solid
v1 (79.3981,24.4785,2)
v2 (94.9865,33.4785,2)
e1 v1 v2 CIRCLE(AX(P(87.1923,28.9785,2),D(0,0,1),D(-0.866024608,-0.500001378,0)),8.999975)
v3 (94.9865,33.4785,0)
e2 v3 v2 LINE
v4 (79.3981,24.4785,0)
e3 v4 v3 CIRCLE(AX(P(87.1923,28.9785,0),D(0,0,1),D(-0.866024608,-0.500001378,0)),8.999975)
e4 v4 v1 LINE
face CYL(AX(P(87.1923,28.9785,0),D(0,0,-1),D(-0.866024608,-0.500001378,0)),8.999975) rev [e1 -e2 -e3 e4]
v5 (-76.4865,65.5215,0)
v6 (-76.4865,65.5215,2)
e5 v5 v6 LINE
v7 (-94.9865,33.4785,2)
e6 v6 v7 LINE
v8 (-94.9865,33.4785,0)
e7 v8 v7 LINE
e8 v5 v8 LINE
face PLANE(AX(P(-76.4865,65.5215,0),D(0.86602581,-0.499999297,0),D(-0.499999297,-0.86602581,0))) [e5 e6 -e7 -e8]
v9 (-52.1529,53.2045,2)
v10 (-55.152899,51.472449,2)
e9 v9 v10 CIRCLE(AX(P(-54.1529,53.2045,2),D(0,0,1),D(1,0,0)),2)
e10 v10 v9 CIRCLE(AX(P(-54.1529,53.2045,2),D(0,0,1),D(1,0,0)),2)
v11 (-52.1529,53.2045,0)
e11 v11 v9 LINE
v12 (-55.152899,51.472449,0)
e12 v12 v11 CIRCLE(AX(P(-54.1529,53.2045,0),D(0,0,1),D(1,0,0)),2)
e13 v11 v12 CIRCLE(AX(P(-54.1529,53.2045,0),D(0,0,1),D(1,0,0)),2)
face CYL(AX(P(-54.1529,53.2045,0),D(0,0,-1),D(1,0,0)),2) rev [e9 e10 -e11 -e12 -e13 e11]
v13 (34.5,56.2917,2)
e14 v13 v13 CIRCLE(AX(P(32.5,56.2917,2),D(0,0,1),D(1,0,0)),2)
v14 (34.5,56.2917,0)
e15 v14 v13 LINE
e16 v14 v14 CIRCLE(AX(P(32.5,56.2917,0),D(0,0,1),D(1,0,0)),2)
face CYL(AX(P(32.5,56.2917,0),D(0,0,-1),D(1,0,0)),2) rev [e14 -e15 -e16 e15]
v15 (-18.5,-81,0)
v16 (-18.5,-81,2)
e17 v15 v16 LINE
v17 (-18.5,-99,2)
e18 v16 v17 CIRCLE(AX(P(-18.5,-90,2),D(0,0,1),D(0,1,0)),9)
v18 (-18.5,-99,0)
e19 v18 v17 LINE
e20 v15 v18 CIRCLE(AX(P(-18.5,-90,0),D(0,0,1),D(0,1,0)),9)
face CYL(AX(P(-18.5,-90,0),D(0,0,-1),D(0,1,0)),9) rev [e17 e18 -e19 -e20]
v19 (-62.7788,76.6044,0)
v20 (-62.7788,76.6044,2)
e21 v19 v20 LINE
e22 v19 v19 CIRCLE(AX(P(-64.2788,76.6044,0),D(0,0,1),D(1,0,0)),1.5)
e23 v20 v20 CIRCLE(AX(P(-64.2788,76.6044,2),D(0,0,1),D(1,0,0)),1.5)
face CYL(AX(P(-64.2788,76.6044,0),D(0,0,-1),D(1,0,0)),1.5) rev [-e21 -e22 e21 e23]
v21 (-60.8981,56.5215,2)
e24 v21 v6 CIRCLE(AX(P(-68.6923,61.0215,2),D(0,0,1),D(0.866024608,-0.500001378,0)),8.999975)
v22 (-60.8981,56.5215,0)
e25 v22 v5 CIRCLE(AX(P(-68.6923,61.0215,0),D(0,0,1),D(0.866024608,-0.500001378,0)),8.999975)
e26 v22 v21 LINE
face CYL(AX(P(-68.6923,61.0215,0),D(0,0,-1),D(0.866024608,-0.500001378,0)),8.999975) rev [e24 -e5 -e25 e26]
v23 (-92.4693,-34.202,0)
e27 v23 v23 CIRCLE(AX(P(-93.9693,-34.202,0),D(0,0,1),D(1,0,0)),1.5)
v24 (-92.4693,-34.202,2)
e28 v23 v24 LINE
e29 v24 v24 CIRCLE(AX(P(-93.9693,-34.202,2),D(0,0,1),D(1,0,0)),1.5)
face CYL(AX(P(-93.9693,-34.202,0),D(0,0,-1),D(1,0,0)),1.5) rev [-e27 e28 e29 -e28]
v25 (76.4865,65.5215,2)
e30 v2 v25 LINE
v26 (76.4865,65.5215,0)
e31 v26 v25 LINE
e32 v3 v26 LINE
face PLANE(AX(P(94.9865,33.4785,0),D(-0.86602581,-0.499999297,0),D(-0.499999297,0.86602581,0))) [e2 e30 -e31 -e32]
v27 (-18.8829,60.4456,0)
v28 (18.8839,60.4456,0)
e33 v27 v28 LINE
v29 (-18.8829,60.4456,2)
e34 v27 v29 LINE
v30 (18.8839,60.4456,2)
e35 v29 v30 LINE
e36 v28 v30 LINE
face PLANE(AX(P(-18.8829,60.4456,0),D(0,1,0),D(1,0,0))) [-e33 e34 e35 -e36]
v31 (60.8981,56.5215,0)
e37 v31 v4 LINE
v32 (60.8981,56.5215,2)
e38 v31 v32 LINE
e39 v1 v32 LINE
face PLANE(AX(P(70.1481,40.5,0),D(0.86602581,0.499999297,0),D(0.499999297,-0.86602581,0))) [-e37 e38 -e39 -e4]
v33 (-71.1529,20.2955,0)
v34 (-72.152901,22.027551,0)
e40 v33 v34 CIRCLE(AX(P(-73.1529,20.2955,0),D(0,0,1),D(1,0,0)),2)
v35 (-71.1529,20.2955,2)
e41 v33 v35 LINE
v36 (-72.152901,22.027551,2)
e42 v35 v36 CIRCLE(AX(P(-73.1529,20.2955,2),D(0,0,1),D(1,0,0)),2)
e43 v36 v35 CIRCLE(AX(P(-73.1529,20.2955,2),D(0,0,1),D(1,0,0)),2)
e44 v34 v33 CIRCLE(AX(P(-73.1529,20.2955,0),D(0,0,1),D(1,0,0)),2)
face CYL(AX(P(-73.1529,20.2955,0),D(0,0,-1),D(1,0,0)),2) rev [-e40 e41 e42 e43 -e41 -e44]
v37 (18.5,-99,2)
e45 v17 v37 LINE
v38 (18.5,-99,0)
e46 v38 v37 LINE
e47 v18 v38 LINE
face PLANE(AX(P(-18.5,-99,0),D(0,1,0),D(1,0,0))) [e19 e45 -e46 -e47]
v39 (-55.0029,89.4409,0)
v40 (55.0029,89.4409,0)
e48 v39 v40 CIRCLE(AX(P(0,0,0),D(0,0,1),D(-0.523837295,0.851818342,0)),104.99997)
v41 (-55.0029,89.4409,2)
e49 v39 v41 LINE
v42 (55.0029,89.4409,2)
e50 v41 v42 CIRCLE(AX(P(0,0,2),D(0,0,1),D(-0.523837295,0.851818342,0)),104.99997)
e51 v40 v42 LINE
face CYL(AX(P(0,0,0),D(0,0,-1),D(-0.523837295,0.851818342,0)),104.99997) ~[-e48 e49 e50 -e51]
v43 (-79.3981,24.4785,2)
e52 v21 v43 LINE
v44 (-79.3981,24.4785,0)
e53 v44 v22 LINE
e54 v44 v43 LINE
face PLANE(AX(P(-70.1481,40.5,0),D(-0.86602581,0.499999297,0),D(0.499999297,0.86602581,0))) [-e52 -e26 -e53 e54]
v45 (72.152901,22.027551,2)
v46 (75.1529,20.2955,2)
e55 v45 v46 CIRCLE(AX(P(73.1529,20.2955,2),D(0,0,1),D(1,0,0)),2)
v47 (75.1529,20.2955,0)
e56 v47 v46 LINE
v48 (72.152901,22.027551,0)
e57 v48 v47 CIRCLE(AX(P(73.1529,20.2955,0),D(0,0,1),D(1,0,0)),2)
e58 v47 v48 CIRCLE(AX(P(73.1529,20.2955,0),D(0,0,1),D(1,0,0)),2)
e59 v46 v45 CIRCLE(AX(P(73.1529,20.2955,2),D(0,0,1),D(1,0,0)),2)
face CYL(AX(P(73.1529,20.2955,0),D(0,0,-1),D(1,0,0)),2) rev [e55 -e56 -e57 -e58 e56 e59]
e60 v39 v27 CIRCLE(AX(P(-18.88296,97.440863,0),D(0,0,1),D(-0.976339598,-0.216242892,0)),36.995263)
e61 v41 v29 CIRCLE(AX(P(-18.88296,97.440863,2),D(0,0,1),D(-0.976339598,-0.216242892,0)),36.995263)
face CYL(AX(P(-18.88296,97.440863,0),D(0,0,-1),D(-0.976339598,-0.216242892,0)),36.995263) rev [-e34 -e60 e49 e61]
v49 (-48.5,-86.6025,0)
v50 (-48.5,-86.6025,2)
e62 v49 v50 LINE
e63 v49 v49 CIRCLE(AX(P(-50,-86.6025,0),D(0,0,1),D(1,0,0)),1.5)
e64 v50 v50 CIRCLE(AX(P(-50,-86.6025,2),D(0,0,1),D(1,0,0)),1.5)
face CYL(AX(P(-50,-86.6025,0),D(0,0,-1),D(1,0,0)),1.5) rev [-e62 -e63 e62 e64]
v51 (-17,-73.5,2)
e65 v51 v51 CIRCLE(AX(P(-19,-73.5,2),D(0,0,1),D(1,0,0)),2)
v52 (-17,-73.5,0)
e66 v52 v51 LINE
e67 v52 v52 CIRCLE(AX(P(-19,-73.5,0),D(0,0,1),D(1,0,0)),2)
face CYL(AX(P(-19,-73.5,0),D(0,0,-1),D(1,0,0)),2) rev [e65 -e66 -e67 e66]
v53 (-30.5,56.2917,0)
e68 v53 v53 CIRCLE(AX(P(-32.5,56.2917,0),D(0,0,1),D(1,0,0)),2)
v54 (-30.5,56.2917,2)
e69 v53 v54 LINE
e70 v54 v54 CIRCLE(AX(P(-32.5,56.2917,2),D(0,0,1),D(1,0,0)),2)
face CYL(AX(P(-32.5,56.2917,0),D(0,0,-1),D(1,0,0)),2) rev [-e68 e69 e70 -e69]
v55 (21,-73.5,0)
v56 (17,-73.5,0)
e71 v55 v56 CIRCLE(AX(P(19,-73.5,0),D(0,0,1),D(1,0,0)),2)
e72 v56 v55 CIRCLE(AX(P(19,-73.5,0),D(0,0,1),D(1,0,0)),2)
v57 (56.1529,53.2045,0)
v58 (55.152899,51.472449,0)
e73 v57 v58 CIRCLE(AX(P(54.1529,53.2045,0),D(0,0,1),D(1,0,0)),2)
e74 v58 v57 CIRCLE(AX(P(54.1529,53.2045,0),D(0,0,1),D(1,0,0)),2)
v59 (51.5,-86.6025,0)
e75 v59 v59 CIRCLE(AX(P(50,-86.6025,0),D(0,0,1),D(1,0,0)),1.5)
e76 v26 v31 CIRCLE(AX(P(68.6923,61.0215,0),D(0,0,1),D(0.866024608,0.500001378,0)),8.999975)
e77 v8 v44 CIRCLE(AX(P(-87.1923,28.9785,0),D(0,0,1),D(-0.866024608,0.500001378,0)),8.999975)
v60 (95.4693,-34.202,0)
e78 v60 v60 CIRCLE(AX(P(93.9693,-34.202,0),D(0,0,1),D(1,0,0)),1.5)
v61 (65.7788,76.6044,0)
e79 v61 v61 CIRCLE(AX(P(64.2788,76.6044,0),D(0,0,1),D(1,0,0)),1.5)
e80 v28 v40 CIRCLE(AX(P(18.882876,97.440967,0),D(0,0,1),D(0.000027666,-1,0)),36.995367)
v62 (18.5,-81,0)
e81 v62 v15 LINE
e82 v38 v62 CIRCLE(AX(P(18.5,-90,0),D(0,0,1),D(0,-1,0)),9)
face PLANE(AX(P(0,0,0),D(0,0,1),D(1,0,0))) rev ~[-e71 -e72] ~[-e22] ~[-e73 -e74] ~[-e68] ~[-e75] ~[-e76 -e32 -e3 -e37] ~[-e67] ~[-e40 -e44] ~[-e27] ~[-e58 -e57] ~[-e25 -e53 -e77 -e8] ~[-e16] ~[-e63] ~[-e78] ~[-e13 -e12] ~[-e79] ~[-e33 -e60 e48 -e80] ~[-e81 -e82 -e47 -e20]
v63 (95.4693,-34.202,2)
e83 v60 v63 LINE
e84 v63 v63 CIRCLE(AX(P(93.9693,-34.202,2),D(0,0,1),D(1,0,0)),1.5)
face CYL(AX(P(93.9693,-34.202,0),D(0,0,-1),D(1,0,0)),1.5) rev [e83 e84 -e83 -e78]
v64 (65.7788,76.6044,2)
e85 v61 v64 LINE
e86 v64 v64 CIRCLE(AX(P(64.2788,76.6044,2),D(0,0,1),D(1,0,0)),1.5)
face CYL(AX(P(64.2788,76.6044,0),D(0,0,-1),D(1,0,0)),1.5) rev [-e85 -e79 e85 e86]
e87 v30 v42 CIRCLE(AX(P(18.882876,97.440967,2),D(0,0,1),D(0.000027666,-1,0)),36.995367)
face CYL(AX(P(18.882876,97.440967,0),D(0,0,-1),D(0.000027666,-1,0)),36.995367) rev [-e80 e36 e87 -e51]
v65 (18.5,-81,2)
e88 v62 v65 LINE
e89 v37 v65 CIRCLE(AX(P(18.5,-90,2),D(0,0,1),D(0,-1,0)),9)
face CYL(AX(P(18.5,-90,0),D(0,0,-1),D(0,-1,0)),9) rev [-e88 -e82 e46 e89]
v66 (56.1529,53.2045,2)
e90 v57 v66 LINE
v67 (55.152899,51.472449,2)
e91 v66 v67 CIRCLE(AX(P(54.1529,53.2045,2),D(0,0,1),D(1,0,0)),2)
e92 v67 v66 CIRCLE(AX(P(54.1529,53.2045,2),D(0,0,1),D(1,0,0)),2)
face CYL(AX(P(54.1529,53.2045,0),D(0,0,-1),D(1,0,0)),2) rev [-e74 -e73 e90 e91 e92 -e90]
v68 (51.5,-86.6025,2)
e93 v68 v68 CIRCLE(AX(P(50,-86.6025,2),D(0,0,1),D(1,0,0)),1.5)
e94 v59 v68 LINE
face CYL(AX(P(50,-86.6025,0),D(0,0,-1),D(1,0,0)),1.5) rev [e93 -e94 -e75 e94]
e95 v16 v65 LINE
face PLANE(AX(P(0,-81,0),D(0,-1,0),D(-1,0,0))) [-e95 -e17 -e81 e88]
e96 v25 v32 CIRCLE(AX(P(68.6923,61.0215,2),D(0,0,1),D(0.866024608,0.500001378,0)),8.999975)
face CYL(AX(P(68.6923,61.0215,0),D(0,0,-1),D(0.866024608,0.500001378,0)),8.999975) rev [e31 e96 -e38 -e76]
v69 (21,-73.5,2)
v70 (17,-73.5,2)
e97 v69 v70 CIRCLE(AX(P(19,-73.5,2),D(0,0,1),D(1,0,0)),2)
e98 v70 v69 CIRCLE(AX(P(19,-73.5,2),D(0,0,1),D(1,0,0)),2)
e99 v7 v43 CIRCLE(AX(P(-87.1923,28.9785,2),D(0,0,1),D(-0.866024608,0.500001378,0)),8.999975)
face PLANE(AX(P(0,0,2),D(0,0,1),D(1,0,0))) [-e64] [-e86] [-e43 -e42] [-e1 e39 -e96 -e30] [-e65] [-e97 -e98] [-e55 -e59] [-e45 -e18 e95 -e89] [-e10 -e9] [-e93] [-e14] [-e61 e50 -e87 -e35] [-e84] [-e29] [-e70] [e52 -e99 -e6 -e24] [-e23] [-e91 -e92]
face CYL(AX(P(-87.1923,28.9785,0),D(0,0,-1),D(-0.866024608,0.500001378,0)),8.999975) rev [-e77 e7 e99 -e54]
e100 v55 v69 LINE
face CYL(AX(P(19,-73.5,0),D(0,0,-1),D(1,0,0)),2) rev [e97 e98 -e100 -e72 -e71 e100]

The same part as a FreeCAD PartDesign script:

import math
import FreeCAD as App
import Part
import Sketcher
from FreeCAD import Vector
Q = App.Units.Quantity

doc = App.newDocument("Part")
body = doc.addObject("PartDesign::Body", "Body")

# Sketch on XY plane
sketch1 = doc.addObject("Sketcher::SketchObject", "Sketch")
body.addObject(sketch1)
sketch1.AttachmentSupport = (doc.XY_Plane, [""])
sketch1.MapMode = "FlatFace"
sketch1.addGeometry(Part.ArcOfCircle(Part.Circle(Vector(-18.9, 97.4, 0), Vector(0, 0, 1), 37), math.radians(-168), math.radians(-90)), False)
sketch1.addGeometry(Part.ArcOfCircle(Part.Circle(Vector(0, 0, 0), Vector(0, 0, 1), 105), math.radians(122), math.radians(418)), False)
sketch1.addGeometry(Part.ArcOfCircle(Part.Circle(Vector(18.9, 97.4, 0), Vector(0, 0, 1), 37), math.radians(-90), math.radians(-12)), False)
sketch1.addGeometry(Part.LineSegment(Vector(18.9, 60.4, 0), Vector(-18.9, 60.4, 0)), False)
sketch1.addGeometry(Part.Circle(Vector(-50, -86.6, 0), Vector(0, 0, 1), 1.5), False)
sketch1.addGeometry(Part.Circle(Vector(-94, -34.2, 0), Vector(0, 0, 1), 1.5), False)
sketch1.addGeometry(Part.Circle(Vector(50, -86.6, 0), Vector(0, 0, 1), 1.5), False)
sketch1.addGeometry(Part.ArcOfCircle(Part.Circle(Vector(-18.5, -90, 0), Vector(0, 0, 1), 9), math.radians(90), math.radians(270)), False)
sketch1.addGeometry(Part.LineSegment(Vector(-18.5, -81, 0), Vector(18.5, -81, 0)), False)
sketch1.addGeometry(Part.ArcOfCircle(Part.Circle(Vector(18.5, -90, 0), Vector(0, 0, 1), 9), math.radians(-90), math.radians(90)), False)
sketch1.addGeometry(Part.LineSegment(Vector(18.5, -99, 0), Vector(-18.5, -99, 0)), False)
sketch1.addGeometry(Part.Circle(Vector(94, -34.2, 0), Vector(0, 0, 1), 1.5), False)
sketch1.addGeometry(Part.ArcOfCircle(Part.Circle(Vector(-68.7, 61, 0), Vector(0, 0, 1), 9), math.radians(-30), math.radians(150)), False)
sketch1.addGeometry(Part.LineSegment(Vector(-60.9, 56.5, 0), Vector(-79.4, 24.5, 0)), False)
sketch1.addGeometry(Part.ArcOfCircle(Part.Circle(Vector(-87.2, 29, 0), Vector(0, 0, 1), 9), math.radians(150), math.radians(330)), False)
sketch1.addGeometry(Part.LineSegment(Vector(-95, 33.5, 0), Vector(-76.5, 65.5, 0)), False)
sketch1.addGeometry(Part.Circle(Vector(-64.3, 76.6, 0), Vector(0, 0, 1), 1.5), False)
sketch1.addGeometry(Part.Circle(Vector(-32.5, 56.3, 0), Vector(0, 0, 1), 2), False)
sketch1.addGeometry(Part.ArcOfCircle(Part.Circle(Vector(87.2, 29, 0), Vector(0, 0, 1), 9), math.radians(-150), math.radians(30)), False)
sketch1.addGeometry(Part.LineSegment(Vector(79.4, 24.5, 0), Vector(60.9, 56.5, 0)), False)
sketch1.addGeometry(Part.ArcOfCircle(Part.Circle(Vector(68.7, 61, 0), Vector(0, 0, 1), 9), math.radians(30), math.radians(210)), False)
sketch1.addGeometry(Part.LineSegment(Vector(76.5, 65.5, 0), Vector(95, 33.5, 0)), False)
sketch1.addGeometry(Part.Circle(Vector(32.5, 56.3, 0), Vector(0, 0, 1), 2), False)
sketch1.addGeometry(Part.Circle(Vector(64.3, 76.6, 0), Vector(0, 0, 1), 1.5), False)
sketch1.addGeometry(Part.Circle(Vector(-19, -73.5, 0), Vector(0, 0, 1), 2), False)
sketch1.addGeometry(Part.Circle(Vector(19, -73.5, 0), Vector(0, 0, 1), 2), False)
sketch1.addGeometry(Part.Circle(Vector(-54.2, 53.2, 0), Vector(0, 0, 1), 2), False)
sketch1.addGeometry(Part.Circle(Vector(-73.2, 20.3, 0), Vector(0, 0, 1), 2), False)
sketch1.addGeometry(Part.Circle(Vector(73.2, 20.3, 0), Vector(0, 0, 1), 2), False)
sketch1.addGeometry(Part.Circle(Vector(54.2, 53.2, 0), Vector(0, 0, 1), 2), False)
sketch1.addConstraint(Sketcher.Constraint("Coincident", 0, 1, 1, 1))
sketch1.addConstraint(Sketcher.Constraint("Coincident", 1, 2, 2, 2))
sketch1.addConstraint(Sketcher.Constraint("Tangent", 2, 1, 3, 1))
sketch1.addConstraint(Sketcher.Constraint("Tangent", 3, 2, 0, 2))
sketch1.addConstraint(Sketcher.Constraint("Tangent", 7, 1, 8, 1))
sketch1.addConstraint(Sketcher.Constraint("Tangent", 8, 2, 9, 2))
sketch1.addConstraint(Sketcher.Constraint("Tangent", 9, 1, 10, 1))
sketch1.addConstraint(Sketcher.Constraint("Tangent", 10, 2, 7, 2))
sketch1.addConstraint(Sketcher.Constraint("Tangent", 12, 1, 13, 1))
sketch1.addConstraint(Sketcher.Constraint("Tangent", 13, 2, 14, 2))
sketch1.addConstraint(Sketcher.Constraint("Tangent", 14, 1, 15, 1))
sketch1.addConstraint(Sketcher.Constraint("Tangent", 15, 2, 12, 2))
sketch1.addConstraint(Sketcher.Constraint("Tangent", 18, 1, 19, 1))
sketch1.addConstraint(Sketcher.Constraint("Tangent", 19, 2, 20, 2))
sketch1.addConstraint(Sketcher.Constraint("Tangent", 20, 1, 21, 1))
sketch1.addConstraint(Sketcher.Constraint("Tangent", 21, 2, 18, 2))
sketch1.addConstraint(Sketcher.Constraint("Horizontal", 3))
sketch1.addConstraint(Sketcher.Constraint("Horizontal", 8))
sketch1.addConstraint(Sketcher.Constraint("Horizontal", 10))
sketch1.addConstraint(Sketcher.Constraint("Coincident", 1, 3, -1, 1))
sketch1.addConstraint(Sketcher.Constraint("Equal", 0, 2))
sketch1.addConstraint(Sketcher.Constraint("Equal", 4, 5))
sketch1.addConstraint(Sketcher.Constraint("Equal", 5, 6))
sketch1.addConstraint(Sketcher.Constraint("Equal", 6, 11))
sketch1.addConstraint(Sketcher.Constraint("Equal", 9, 12))
sketch1.addConstraint(Sketcher.Constraint("Equal", 12, 14))
sketch1.addConstraint(Sketcher.Constraint("Equal", 11, 16))
sketch1.addConstraint(Sketcher.Constraint("Equal", 14, 18))
sketch1.addConstraint(Sketcher.Constraint("Equal", 18, 20))
sketch1.addConstraint(Sketcher.Constraint("Equal", 17, 22))
sketch1.addConstraint(Sketcher.Constraint("Equal", 16, 23))
sketch1.addConstraint(Sketcher.Constraint("Equal", 22, 24))
sketch1.addConstraint(Sketcher.Constraint("Equal", 24, 25))
sketch1.addConstraint(Sketcher.Constraint("Equal", 25, 26))
sketch1.addConstraint(Sketcher.Constraint("Equal", 26, 27))
sketch1.addConstraint(Sketcher.Constraint("Equal", 27, 28))
sketch1.addConstraint(Sketcher.Constraint("Equal", 28, 29))
sketch1.addConstraint(Sketcher.Constraint("Symmetric", 4, 3, 6, 3, -2))
sketch1.addConstraint(Sketcher.Constraint("Symmetric", 5, 3, 11, 3, -2))
sketch1.addConstraint(Sketcher.Constraint("Symmetric", 14, 3, 18, 3, -2))
sketch1.addConstraint(Sketcher.Constraint("Symmetric", 12, 3, 20, 3, -2))
sketch1.addConstraint(Sketcher.Constraint("Symmetric", 17, 3, 22, 3, -2))
sketch1.addConstraint(Sketcher.Constraint("Symmetric", 16, 3, 23, 3, -2))
sketch1.addConstraint(Sketcher.Constraint("Symmetric", 24, 3, 25, 3, -2))
sketch1.addConstraint(Sketcher.Constraint("Symmetric", 27, 3, 28, 3, -2))
sketch1.addConstraint(Sketcher.Constraint("Symmetric", 26, 3, 29, 3, -2))
sketch1.addConstraint(Sketcher.Constraint("Horizontal", 0, 1, 1, 2))
sketch1.addConstraint(Sketcher.Constraint("Diameter", 4, Q("3 mm")))
sketch1.addConstraint(Sketcher.Constraint("Diameter", 17, Q("4 mm")))
sketch1.addConstraint(Sketcher.Constraint("Radius", 1, Q("105 mm")))
sketch1.addConstraint(Sketcher.Constraint("Radius", 7, Q("9 mm")))
sketch1.addConstraint(Sketcher.Constraint("Angle", 13, Q("-120 deg")))
sketch1.addConstraint(Sketcher.Constraint("DistanceY", 7, 3, -1, 1, Q("90 mm")))
sketch1.addConstraint(Sketcher.Constraint("DistanceX", 24, 3, -1, 1, Q("19 mm")))
sketch1.addConstraint(Sketcher.Constraint("DistanceX", 27, 3, 26, 3, Q("19 mm")))
sketch1.addConstraint(Sketcher.Constraint("DistanceY", 0, 1, 0, 3, Q("8 mm")))
sketch1.addConstraint(Sketcher.Constraint("DistanceX", 7, 3, -1, 1, Q("18.5 mm")))
sketch1.addConstraint(Sketcher.Constraint("DistanceX", -1, 1, 9, 3, Q("18.5 mm")))
sketch1.addConstraint(Sketcher.Constraint("DistanceX", 14, 3, 12, 3, Q("18.5 mm")))
sketch1.addConstraint(Sketcher.Constraint("DistanceY", 7, 1, 24, 3, Q("7.5 mm")))
sketch1.addConstraint(Sketcher.Constraint("DistanceX", 0, 1, 0, 3, Q("36.12 mm")))
sketch1.addConstraint(Sketcher.Constraint("DistanceX", 4, 3, -1, 1, Q("50 mm")))
sketch1.addConstraint(Sketcher.Constraint("DistanceX", 17, 3, 22, 3, Q("65 mm")))
sketch1.addConstraint(Sketcher.Constraint("DistanceY", 5, 3, 14, 3, Q("63.1805 mm")))
sketch1.addConstraint(Sketcher.Constraint("DistanceY", 26, 3, 16, 3, Q("23.4 mm")))
sketch1.addConstraint(Sketcher.Constraint("DistanceX", 26, 3, 0, 3, Q("35.27 mm")))
sketch1.addConstraint(Sketcher.Constraint("DistanceX", 3, 2, 3, 1, Q("37.7668 mm")))
sketch1.addConstraint(Sketcher.Constraint("DistanceY", 5, 3, -1, 1, Q("34.202 mm")))
sketch1.addConstraint(Sketcher.Constraint("DistanceX", 12, 1, -1, 1, Q("60.898 mm")))
sketch1.addConstraint(Sketcher.Constraint("DistanceX", 5, 3, 12, 3, Q("25.277 mm")))
sketch1.addConstraint(Sketcher.Constraint("DistanceY", 4, 3, 12, 3, Q("147.624 mm")))
sketch1.addConstraint(Sketcher.Constraint("DistanceY", 12, 3, 16, 3, Q("15.583 mm")))
sketch1.addConstraint(Sketcher.Constraint("DistanceX", 16, 3, 0, 3, Q("45.396 mm")))
sketch1.addConstraint(Sketcher.Constraint("DistanceY", 27, 3, 14, 3, Q("8.683 mm")))
sketch1.addConstraint(Sketcher.Constraint("DistanceY", 22, 3, 2, 1, Q("4.154 mm")))
pad1 = doc.addObject("PartDesign::Pad", "Pad")
body.addObject(pad1)
pad1.Profile = sketch1
pad1.Length = 2

doc.recompute()
